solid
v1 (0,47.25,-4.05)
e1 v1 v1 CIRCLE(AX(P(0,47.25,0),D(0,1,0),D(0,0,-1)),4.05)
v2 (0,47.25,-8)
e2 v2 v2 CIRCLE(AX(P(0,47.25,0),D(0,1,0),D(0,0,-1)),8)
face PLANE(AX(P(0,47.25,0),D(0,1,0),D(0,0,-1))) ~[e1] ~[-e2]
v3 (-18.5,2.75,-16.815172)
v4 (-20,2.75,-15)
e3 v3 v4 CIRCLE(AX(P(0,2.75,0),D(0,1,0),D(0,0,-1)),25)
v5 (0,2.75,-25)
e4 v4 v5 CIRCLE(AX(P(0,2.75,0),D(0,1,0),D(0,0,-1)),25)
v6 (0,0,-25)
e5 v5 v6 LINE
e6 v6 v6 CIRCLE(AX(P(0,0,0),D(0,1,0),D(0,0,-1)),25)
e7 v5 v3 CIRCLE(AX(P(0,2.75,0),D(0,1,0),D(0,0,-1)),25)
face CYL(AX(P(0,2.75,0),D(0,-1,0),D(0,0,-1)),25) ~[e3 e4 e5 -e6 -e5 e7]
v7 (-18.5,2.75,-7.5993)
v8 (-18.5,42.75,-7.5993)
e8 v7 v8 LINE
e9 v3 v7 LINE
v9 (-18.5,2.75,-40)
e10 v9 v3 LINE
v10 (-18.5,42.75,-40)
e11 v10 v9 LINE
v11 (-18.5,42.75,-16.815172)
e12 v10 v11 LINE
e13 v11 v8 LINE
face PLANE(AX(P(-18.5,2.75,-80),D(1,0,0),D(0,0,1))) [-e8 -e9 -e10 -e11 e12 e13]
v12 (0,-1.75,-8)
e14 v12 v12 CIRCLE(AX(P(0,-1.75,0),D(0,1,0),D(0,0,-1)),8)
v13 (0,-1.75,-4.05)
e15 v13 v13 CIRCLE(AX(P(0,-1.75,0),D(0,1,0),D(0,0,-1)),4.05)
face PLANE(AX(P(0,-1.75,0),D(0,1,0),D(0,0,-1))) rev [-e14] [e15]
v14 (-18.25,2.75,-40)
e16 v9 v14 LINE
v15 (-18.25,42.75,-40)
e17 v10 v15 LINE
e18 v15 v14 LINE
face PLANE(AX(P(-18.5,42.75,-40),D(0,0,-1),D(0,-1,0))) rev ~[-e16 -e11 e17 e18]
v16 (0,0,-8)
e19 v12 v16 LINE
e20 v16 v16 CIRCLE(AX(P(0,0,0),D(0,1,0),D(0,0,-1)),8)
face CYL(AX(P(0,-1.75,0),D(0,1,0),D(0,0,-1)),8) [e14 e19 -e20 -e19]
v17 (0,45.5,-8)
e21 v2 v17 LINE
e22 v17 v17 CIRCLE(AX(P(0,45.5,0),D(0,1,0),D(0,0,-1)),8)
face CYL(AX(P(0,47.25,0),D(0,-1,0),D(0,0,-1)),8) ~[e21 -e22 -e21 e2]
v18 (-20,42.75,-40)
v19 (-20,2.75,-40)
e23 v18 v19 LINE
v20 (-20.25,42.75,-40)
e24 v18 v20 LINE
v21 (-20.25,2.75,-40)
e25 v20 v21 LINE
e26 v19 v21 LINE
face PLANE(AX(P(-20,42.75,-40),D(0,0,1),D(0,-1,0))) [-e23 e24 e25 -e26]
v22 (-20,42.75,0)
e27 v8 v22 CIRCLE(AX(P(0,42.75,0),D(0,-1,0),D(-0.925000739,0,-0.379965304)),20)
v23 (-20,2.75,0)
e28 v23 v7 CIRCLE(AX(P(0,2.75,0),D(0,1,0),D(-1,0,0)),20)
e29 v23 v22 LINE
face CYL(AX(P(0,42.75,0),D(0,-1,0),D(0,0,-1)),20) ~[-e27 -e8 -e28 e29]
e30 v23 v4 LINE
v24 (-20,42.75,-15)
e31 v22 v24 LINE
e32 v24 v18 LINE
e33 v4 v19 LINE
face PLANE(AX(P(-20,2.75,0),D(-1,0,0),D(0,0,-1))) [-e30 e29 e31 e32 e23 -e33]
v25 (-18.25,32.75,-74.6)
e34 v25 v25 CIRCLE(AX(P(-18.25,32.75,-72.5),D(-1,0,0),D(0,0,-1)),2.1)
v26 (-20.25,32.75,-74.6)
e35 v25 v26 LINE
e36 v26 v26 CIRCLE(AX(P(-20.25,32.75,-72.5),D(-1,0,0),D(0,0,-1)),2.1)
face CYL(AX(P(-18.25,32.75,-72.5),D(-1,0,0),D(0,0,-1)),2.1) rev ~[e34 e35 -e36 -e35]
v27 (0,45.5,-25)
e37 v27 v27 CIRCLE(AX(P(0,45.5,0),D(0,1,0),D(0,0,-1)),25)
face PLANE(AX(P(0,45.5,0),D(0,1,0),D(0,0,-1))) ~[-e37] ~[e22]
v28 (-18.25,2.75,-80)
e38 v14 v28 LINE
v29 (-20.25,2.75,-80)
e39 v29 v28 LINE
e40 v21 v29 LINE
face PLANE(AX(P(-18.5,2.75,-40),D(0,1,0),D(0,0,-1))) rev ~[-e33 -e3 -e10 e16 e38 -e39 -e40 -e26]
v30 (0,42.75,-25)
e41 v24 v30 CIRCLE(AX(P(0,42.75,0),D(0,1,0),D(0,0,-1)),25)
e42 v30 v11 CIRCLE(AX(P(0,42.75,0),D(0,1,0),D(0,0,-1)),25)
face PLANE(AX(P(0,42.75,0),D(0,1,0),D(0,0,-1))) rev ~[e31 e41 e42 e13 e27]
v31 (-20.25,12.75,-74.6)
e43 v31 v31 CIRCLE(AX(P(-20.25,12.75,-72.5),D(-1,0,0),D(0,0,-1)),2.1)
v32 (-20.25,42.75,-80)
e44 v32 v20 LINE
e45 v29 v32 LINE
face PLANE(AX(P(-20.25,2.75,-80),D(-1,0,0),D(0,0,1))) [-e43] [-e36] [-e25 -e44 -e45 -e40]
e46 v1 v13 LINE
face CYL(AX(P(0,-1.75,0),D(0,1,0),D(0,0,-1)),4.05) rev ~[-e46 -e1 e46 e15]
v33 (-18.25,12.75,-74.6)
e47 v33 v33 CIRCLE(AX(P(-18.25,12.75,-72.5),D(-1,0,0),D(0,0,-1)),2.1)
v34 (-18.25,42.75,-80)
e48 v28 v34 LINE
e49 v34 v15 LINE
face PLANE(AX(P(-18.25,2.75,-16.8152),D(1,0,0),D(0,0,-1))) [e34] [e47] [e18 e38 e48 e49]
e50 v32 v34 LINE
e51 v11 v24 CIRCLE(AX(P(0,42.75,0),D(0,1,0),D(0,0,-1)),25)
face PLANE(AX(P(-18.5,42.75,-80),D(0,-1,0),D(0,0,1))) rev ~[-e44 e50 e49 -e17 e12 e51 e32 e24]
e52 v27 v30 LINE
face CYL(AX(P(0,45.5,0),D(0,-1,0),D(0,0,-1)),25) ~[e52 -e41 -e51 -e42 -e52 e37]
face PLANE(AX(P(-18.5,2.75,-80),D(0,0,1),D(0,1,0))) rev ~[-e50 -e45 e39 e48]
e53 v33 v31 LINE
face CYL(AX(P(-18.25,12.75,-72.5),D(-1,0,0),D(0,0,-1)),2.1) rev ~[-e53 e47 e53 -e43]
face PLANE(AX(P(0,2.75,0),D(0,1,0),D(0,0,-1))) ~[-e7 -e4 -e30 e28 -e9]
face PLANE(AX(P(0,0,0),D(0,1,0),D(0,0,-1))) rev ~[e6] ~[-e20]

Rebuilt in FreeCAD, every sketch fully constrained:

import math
import FreeCAD as App
import Part
import Sketcher
from FreeCAD import Vector
Q = App.Units.Quantity


def add_polygon(sketch, points):
    """Adds a closed chain of lines whose ends are joined by coincident constraints."""
    first, n = sketch.GeometryCount, len(points)
    for a, b in zip(points, points[1:] + points[:1]):
        sketch.addGeometry(Part.LineSegment(App.Vector(*a, 0), App.Vector(*b, 0)), False)
    for i in range(n):
        sketch.addConstraint(Sketcher.Constraint("Coincident", first + i, 2, first + (i + 1) % n, 1))

doc = App.newDocument("Part")
params = doc.addObject("Spreadsheet::Sheet", "Params")
for row, (alias, value) in enumerate([
    ("sketch1_width", "40 mm"),
    ("sketch1_width2", "49 mm"),
    ("revolution_angle", "360 deg"),
    ("sketch2_height", "80 mm"),
    ("sketch2_width", "1.5 mm"),
    ("sketch2_radius", "20 mm"),
    ("pad1_length", "40 mm"),
    ("sketch3_width", "40 mm"),
    ("pad2_length", "0.25 mm"),
    ("sketch4_width", "40 mm"),
    ("pad3_length", "0.25 mm"),
    ("sketch5_diameter", "4.2 mm"),
    ("hole_diameter", "4.2 mm"),
], start=1):
    params.set(f"A{row}", alias)
    params.set(f"B{row}", "=" + value)
    params.setAlias(f"B{row}", alias)

body = doc.addObject("PartDesign::Body", "Body")

sketch1 = body.newObject("Sketcher::SketchObject", "Sketch")
sketch1.AttachmentSupport = (doc.getObject("YZ_Plane"), [""])
sketch1.MapMode = "FlatFace"
add_polygon(sketch1, [(-1.8, -4), (-1.8, -8), (0, -8), (0, -25), (2.8, -25), (2.8, -20), (42.8, -20), (42.8, -25), (45.5, -25), (45.5, -8), (47.2, -8), (47.2, -4)])
sketch1.addConstraint(Sketcher.Constraint("Vertical", 0))
sketch1.addConstraint(Sketcher.Constraint("Horizontal", 1))
sketch1.addConstraint(Sketcher.Constraint("Vertical", 2))
sketch1.addConstraint(Sketcher.Constraint("Horizontal", 3))
sketch1.addConstraint(Sketcher.Constraint("Vertical", 4))
sketch1.addConstraint(Sketcher.Constraint("Horizontal", 5))
sketch1.addConstraint(Sketcher.Constraint("Vertical", 6))
sketch1.addConstraint(Sketcher.Constraint("Horizontal", 7))
sketch1.addConstraint(Sketcher.Constraint("Vertical", 8))
sketch1.addConstraint(Sketcher.Constraint("Horizontal", 9))
sketch1.addConstraint(Sketcher.Constraint("Vertical", 10))
sketch1.addConstraint(Sketcher.Constraint("Horizontal", 11))
sketch1.addConstraint(Sketcher.Constraint("PointOnObject", 1, 2, -2))
sketch1.addConstraint(Sketcher.Constraint("Horizontal", 3, 2, 6, 2))
sketch1.addConstraint(Sketcher.Constraint("Horizontal", 1, 2, 8, 2))
sketch1.addConstraint(Sketcher.Constraint("Equal", 3, 7))
sketch1.addConstraint(Sketcher.Constraint("Equal", 1, 9))
sketch1.addConstraint(Sketcher.Constraint("DistanceX", 5, 1, 5, 2, Q("40 mm")))
sketch1.addConstraint(Sketcher.Constraint("DistanceX", 11, 2, 11, 1, Q("49 mm")))
sketch1.addConstraint(Sketcher.Constraint("DistanceY", 0, 2, -1, 1, Q("8 mm")))
sketch1.addConstraint(Sketcher.Constraint("DistanceY", 2, 2, -1, 1, Q("25 mm")))
sketch1.addConstraint(Sketcher.Constraint("DistanceY", 4, 2, -1, 1, Q("20 mm")))
sketch1.addConstraint(Sketcher.Constraint("DistanceX", -1, 1, 7, 2, Q("45.5 mm")))
sketch1.addConstraint(Sketcher.Constraint("DistanceY", 10, 2, -1, 1, Q("4.05 mm")))
sketch1.setExpression("Constraints[29]", "Params.sketch1_width")
sketch1.setExpression("Constraints[30]", "Params.sketch1_width2")
revolution = body.newObject("PartDesign::Revolution", "Revolution")
revolution.Profile = sketch1
revolution.ReferenceAxis = (sketch1, ["H_Axis"])
revolution.setExpression("Angle", "Params.revolution_angle")

sketch2 = body.newObject("Sketcher::SketchObject", "Sketch001")
sketch2.AttachmentSupport = (doc.getObject("XZ_Plane"), [""])
sketch2.MapMode = "FlatFace"
sketch2.AttachmentOffset = App.Placement(Vector(0, 0, -2.75), App.Rotation())
sketch2.addGeometry(Part.ArcOfCircle(Part.Circle(Vector(0, 0, 0), Vector(0, 0, 1), 20), math.radians(180), math.radians(202)), False)
sketch2.addGeometry(Part.LineSegment(Vector(-18.5, -7.6, 0), Vector(-18.5, -80, 0)), False)
sketch2.addGeometry(Part.LineSegment(Vector(-18.5, -80, 0), Vector(-20, -80, 0)), False)
sketch2.addGeometry(Part.LineSegment(Vector(-20, -80, 0), Vector(-20, 0, 0)), False)
sketch2.addConstraint(Sketcher.Constraint("Coincident", 0, 2, 1, 1))
sketch2.addConstraint(Sketcher.Constraint("Coincident", 1, 2, 2, 1))
sketch2.addConstraint(Sketcher.Constraint("Coincident", 2, 2, 3, 1))
sketch2.addConstraint(Sketcher.Constraint("Tangent", 3, 2, 0, 1))
sketch2.addConstraint(Sketcher.Constraint("Vertical", 1))
sketch2.addConstraint(Sketcher.Constraint("Horizontal", 2))
sketch2.addConstraint(Sketcher.Constraint("Vertical", 3))
sketch2.addConstraint(Sketcher.Constraint("Coincident", 0, 3, -1, 1))
sketch2.addConstraint(Sketcher.Constraint("DistanceY", 3, 1, 3, 2, Q("80 mm")))
sketch2.addConstraint(Sketcher.Constraint("DistanceX", 2, 2, 2, 1, Q("1.5 mm")))
sketch2.addConstraint(Sketcher.Constraint("Radius", 0, Q("20 mm")))
sketch2.setExpression("Constraints[8]", "Params.sketch2_height")
sketch2.setExpression("Constraints[9]", "Params.sketch2_width")
sketch2.setExpression("Constraints[10]", "Params.sketch2_radius")
pad1 = body.newObject("PartDesign::Pad", "Pad")
pad1.Profile = sketch2
pad1.setExpression("Length", "Params.pad1_length")
pad1.Reversed = True

sketch3 = body.newObject("Sketcher::SketchObject", "Sketch002")
sketch3.AttachmentSupport = (doc.getObject("YZ_Plane"), [""])
sketch3.MapMode = "FlatFace"
sketch3.AttachmentOffset = App.Placement(Vector(0, 0, -20), App.Rotation())
add_polygon(sketch3, [(43, -40), (43, -80), (3, -80), (3, -40)])
sketch3.addConstraint(Sketcher.Constraint("Vertical", 0))
sketch3.addConstraint(Sketcher.Constraint("Horizontal", 1))
sketch3.addConstraint(Sketcher.Constraint("Vertical", 2))
sketch3.addConstraint(Sketcher.Constraint("Horizontal", 3))
sketch3.addConstraint(Sketcher.Constraint("Equal", 3, 0))
sketch3.addConstraint(Sketcher.Constraint("DistanceX", 1, 2, 1, 1, Q("40 mm")))
sketch3.addConstraint(Sketcher.Constraint("DistanceY", 2, 2, -1, 1, Q("40 mm")))
sketch3.addConstraint(Sketcher.Constraint("DistanceX", -1, 1, 0, 2, Q("42.75 mm")))
sketch3.setExpression("Constraints[9]", "Params.sketch3_width")
pad2 = body.newObject("PartDesign::Pad", "Pad001")
pad2.Profile = sketch3
pad2.setExpression("Length", "Params.pad2_length")
pad2.Reversed = True

sketch4 = body.newObject("Sketcher::SketchObject", "Sketch003")
sketch4.AttachmentSupport = (doc.getObject("YZ_Plane"), [""])
sketch4.MapMode = "FlatFace"
sketch4.AttachmentOffset = App.Placement(Vector(0, 0, -18.5), App.Rotation())
add_polygon(sketch4, [(3, -40), (3, -80), (43, -80), (43, -40)])
sketch4.addConstraint(Sketcher.Constraint("Vertical", 0))
sketch4.addConstraint(Sketcher.Constraint("Horizontal", 1))
sketch4.addConstraint(Sketcher.Constraint("Vertical", 2))
sketch4.addConstraint(Sketcher.Constraint("Horizontal", 3))
sketch4.addConstraint(Sketcher.Constraint("Equal", 3, 0))
sketch4.addConstraint(Sketcher.Constraint("DistanceX", 1, 1, 1, 2, Q("40 mm")))
sketch4.addConstraint(Sketcher.Constraint("DistanceY", 2, 2, -1, 1, Q("40 mm")))
sketch4.addConstraint(Sketcher.Constraint("DistanceX", -1, 1, 0, 2, Q("2.75 mm")))
sketch4.setExpression("Constraints[9]", "Params.sketch4_width")
pad3 = body.newObject("PartDesign::Pad", "Pad002")
pad3.Profile = sketch4
pad3.setExpression("Length", "Params.pad3_length")

sketch5 = body.newObject("Sketcher::SketchObject", "Sketch004")
sketch5.AttachmentSupport = (doc.getObject("YZ_Plane"), [""])
sketch5.MapMode = "FlatFace"
sketch5.AttachmentOffset = App.Placement(Vector(0, 0, -18.25), App.Rotation())
sketch5.addGeometry(Part.Circle(Vector(32.8, -72.5, 0), Vector(0, 0, 1), 2.1), False)
sketch5.addGeometry(Part.Circle(Vector(12.8, -72.5, 0), Vector(0, 0, 1), 2.1), False)
sketch5.addConstraint(Sketcher.Constraint("Equal", 0, 1))
sketch5.addConstraint(Sketcher.Constraint("Horizontal", 0, 3, 1, 3))
sketch5.addConstraint(Sketcher.Constraint("Diameter", 0, Q("4.2 mm")))
sketch5.addConstraint(Sketcher.Constraint("DistanceX", 1, 3, 0, 3, Q("20 mm")))
sketch5.addConstraint(Sketcher.Constraint("DistanceY", 0, 3, -1, 1, Q("72.5 mm")))
sketch5.addConstraint(Sketcher.Constraint("DistanceX", -1, 1, 0, 3, Q("32.75 mm")))
sketch5.setExpression("Constraints[2]", "Params.sketch5_diameter")
doc.recompute()
hole = body.newObject("PartDesign::Hole", "Hole")
hole.Profile = sketch5
hole.ThreadType = "None"
hole.setExpression("Diameter", "Params.hole_diameter")
hole.DepthType = "ThroughAll"

doc.recompute()
